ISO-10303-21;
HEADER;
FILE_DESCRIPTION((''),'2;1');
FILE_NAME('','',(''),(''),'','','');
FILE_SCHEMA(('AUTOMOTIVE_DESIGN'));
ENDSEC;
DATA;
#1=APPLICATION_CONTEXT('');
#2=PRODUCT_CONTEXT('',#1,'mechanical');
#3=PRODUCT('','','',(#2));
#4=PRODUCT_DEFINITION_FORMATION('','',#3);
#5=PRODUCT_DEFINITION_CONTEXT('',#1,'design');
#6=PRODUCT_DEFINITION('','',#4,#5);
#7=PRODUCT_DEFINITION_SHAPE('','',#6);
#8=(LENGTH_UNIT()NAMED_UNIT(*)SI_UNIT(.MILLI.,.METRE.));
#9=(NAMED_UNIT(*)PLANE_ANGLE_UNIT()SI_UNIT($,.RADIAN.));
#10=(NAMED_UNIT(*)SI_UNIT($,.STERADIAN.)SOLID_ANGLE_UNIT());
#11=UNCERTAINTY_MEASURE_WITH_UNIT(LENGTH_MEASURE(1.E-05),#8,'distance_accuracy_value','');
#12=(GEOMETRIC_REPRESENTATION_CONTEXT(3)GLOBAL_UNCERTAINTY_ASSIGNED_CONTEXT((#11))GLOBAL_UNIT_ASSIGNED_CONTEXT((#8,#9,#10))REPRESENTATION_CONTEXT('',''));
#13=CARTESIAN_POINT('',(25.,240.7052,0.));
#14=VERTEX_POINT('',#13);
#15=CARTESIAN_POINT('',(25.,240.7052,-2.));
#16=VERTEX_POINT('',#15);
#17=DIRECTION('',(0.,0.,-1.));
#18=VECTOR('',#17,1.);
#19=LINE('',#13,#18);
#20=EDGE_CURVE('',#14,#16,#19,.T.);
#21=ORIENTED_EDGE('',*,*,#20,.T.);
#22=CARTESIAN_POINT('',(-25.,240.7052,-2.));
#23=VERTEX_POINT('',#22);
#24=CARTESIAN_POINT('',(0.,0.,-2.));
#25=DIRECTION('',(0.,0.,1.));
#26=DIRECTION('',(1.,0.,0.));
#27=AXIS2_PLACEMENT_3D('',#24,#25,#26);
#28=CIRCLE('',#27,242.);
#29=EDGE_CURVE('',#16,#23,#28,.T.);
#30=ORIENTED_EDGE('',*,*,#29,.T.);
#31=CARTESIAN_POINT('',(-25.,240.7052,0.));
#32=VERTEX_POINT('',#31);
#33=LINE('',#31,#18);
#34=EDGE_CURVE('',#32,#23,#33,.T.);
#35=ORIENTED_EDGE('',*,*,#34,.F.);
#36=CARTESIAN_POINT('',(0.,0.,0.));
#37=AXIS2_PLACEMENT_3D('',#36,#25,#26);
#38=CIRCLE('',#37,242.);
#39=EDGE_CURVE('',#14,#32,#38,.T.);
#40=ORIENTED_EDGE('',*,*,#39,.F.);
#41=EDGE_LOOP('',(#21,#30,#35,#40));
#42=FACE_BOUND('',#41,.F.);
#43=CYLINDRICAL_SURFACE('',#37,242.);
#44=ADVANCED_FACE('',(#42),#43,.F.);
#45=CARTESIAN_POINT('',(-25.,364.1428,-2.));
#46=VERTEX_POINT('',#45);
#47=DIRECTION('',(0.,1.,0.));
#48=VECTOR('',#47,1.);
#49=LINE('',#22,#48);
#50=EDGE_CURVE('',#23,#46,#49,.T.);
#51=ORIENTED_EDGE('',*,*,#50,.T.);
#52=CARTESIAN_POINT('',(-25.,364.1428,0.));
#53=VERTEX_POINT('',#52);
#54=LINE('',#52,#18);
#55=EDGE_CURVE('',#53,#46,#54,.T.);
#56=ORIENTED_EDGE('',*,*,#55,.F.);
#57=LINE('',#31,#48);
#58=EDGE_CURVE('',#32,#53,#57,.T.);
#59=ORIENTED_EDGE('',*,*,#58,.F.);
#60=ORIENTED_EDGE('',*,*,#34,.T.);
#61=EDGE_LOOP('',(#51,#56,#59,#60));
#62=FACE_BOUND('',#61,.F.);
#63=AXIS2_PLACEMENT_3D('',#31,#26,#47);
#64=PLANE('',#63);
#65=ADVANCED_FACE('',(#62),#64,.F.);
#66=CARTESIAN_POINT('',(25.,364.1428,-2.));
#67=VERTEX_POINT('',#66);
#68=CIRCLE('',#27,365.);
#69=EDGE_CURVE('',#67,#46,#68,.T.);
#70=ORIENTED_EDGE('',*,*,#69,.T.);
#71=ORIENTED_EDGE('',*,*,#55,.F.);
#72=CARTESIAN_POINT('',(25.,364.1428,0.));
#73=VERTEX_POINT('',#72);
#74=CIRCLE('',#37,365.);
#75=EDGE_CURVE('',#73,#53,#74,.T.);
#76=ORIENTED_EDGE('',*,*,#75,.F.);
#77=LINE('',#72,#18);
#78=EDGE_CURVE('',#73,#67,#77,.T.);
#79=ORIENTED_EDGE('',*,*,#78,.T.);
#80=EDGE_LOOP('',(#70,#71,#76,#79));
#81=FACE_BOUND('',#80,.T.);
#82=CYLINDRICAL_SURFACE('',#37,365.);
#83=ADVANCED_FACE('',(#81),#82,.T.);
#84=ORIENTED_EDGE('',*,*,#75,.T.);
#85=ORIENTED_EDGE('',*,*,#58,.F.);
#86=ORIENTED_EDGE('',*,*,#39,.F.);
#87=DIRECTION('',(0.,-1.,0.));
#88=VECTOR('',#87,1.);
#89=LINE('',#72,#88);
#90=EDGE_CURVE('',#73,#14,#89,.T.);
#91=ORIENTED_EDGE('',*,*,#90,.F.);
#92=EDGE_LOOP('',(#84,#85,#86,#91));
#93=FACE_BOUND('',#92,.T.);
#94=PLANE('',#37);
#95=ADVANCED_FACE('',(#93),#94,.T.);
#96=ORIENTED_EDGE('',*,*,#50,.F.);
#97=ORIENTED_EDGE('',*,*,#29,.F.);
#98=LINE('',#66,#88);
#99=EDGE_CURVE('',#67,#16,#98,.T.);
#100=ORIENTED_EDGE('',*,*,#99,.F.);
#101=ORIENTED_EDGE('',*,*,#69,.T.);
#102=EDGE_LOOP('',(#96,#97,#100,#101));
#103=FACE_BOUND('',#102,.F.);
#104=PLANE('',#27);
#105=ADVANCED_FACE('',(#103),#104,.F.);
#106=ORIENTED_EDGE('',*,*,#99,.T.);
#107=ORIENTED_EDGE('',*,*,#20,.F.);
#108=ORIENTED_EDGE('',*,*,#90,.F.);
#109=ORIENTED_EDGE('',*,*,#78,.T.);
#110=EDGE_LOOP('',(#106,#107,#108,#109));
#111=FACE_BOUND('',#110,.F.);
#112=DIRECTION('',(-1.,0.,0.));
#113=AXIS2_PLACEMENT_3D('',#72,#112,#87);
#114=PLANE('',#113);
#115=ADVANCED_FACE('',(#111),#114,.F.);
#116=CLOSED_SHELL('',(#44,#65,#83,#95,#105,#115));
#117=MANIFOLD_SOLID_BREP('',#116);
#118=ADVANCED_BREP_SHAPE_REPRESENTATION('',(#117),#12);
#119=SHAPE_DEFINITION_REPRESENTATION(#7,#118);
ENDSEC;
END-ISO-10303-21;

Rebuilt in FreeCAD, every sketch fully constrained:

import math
import FreeCAD as App
import Part
import Sketcher

doc = App.newDocument("Part")
params = doc.addObject("Spreadsheet::Sheet", "Params")
for row, (alias, value) in enumerate([
    ("sketch1_radius", "242 mm"),
    ("sketch1_radius2", "365 mm"),
    ("pad1_length", "2 mm"),
], start=1):
    params.set(f"A{row}", alias)
    params.set(f"B{row}", "=" + value)
    params.setAlias(f"B{row}", alias)

body = doc.addObject("PartDesign::Body", "Body")

# Sketch on XY plane
sketch1 = body.newObject("Sketcher::SketchObject", "Sketch")
sketch1.AttachmentSupport = (doc.getObject("XY_Plane"), [""])
sketch1.MapMode = "FlatFace"
sketch1.addGeometry([
    Part.ArcOfCircle(Part.Circle(App.Vector(0, 0, 0), App.Vector(0, 0, 1), 242), math.radians(84.070435), math.radians(95.929565)),
    Part.LineSegment(App.Vector(25, 240.7052, 0), App.Vector(25, 364.1428, 0)),
    Part.ArcOfCircle(Part.Circle(App.Vector(0, 0, 0), App.Vector(0, 0, 1), 365), math.radians(86.072556), math.radians(93.927444)),
    Part.LineSegment(App.Vector(-25, 364.1428, 0), App.Vector(-25, 240.7052, 0)),
], False)
sketch1.addConstraint([
    Sketcher.Constraint("Coincident", 0, 1, 1, 1),
    Sketcher.Constraint("Coincident", 1, 2, 2, 1),
    Sketcher.Constraint("Coincident", 2, 2, 3, 1),
    Sketcher.Constraint("Coincident", 3, 2, 0, 2),
    Sketcher.Constraint("Vertical", 1),
    Sketcher.Constraint("Vertical", 3),
    Sketcher.Constraint("Coincident", 0, 3, -1, 1),
    Sketcher.Constraint("Coincident", 2, 3, -1, 1),
    Sketcher.Constraint("Horizontal", 1, 2, 2, 2),
    Sketcher.Constraint("Radius", 0, 242.0),
    Sketcher.Constraint("Radius", 2, 365.0),
    Sketcher.Constraint("DistanceX", 2, 2, 1, 2, 50.0),
])
sketch1.setExpression("Constraints[9]", "Params.sketch1_radius")
sketch1.setExpression("Constraints[10]", "Params.sketch1_radius2")
pad1 = body.newObject("PartDesign::Pad", "Pad")
pad1.Profile = sketch1
pad1.setExpression("Length", "Params.pad1_length")
pad1.Reversed = True

doc.recompute()
